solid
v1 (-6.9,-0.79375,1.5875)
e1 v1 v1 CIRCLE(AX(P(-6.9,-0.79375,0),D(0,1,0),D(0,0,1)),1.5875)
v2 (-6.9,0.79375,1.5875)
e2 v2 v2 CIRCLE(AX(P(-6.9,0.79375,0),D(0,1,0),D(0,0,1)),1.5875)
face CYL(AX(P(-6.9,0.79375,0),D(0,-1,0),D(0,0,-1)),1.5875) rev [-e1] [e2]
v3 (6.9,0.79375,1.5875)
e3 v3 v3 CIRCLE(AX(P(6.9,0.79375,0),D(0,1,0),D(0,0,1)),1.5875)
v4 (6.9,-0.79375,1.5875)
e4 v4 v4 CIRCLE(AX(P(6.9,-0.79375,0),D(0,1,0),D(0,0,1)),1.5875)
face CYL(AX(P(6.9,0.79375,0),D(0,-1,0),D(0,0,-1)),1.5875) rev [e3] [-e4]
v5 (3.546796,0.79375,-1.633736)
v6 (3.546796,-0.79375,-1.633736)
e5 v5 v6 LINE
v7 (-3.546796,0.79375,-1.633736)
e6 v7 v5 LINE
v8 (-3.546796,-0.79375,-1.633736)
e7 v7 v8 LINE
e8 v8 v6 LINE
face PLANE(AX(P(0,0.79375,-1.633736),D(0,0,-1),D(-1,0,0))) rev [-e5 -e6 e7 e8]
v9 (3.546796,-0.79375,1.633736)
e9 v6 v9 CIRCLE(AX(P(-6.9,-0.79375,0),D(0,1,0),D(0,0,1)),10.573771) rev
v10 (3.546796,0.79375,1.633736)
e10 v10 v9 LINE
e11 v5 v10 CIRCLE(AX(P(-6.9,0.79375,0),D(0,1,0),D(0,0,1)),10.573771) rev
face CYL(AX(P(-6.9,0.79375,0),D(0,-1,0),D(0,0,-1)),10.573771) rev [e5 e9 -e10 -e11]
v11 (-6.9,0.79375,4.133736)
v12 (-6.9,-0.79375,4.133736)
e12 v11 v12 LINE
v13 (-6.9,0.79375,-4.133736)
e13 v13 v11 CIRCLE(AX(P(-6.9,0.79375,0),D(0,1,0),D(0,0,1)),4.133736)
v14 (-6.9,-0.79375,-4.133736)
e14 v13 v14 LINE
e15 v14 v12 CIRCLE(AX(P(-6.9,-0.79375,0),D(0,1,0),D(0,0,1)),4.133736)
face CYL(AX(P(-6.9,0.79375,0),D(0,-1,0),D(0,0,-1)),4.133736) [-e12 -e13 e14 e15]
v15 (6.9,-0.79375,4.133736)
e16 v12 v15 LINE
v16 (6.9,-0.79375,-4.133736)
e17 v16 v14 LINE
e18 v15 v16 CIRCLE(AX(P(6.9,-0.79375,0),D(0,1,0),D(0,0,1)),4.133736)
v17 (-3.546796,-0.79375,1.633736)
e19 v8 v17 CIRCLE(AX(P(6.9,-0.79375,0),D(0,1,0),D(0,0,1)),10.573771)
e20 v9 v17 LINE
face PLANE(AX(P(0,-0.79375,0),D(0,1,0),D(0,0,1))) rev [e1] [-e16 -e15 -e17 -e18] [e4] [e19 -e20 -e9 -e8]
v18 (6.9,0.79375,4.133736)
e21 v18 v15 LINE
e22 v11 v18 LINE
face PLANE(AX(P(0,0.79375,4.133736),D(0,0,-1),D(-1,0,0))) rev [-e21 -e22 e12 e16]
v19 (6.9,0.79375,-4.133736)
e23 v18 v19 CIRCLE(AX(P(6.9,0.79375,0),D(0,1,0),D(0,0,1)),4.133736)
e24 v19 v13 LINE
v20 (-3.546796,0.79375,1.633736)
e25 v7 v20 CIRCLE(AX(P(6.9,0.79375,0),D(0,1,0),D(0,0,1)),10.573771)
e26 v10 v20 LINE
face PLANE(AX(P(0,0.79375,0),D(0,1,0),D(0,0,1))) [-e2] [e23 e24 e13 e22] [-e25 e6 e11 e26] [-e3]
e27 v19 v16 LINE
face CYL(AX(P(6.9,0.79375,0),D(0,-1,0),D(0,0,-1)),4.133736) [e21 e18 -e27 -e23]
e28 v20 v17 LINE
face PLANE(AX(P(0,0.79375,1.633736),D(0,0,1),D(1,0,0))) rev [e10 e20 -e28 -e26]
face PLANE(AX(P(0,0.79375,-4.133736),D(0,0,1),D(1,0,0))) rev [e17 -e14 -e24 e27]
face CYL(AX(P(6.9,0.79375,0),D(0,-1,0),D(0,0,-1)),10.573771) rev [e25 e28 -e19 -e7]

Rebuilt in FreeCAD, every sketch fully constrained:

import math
import FreeCAD as App
import Part
import Sketcher
from FreeCAD import Vector
Q = App.Units.Quantity

doc = App.newDocument("Part")
body = doc.addObject("PartDesign::Body", "Body")

# Sketch on XZ plane
sketch1 = body.newObject("Sketcher::SketchObject", "Sketch")
sketch1.AttachmentSupport = (doc.getObject("XZ_Plane"), [""])
sketch1.MapMode = "FlatFace"
sketch1.addGeometry([
    Part.LineSegment(Vector(6.9, -4.1, 0), Vector(-6.9, -4.1, 0)),  # 0
    Part.ArcOfCircle(Part.Circle(Vector(-6.9, 0, 0), Vector(0, 0, 1), 4.1), math.radians(90), math.radians(270)),  # 1
    Part.LineSegment(Vector(-6.9, 4.1, 0), Vector(6.9, 4.1, 0)),  # 2
    Part.ArcOfCircle(Part.Circle(Vector(6.9, 0, 0), Vector(0, 0, 1), 4.1), math.radians(-90), math.radians(90)),  # 3
    Part.Circle(Vector(-6.9, 0, 0), Vector(0, 0, 1), 1.6),  # 4
    Part.ArcOfCircle(Part.Circle(Vector(-6.9, 0, 0), Vector(0, 0, 1), 10.6), math.radians(-8.89), math.radians(8.89)),  # 5
    Part.LineSegment(Vector(3.5, 1.6, 0), Vector(-3.5, 1.6, 0)),  # 6
    Part.ArcOfCircle(Part.Circle(Vector(6.9, 0, 0), Vector(0, 0, 1), 10.6), math.radians(171.11), math.radians(188.89)),  # 7
    Part.LineSegment(Vector(-3.5, -1.6, 0), Vector(3.5, -1.6, 0)),  # 8
    Part.Circle(Vector(6.9, 0, 0), Vector(0, 0, 1), 1.6),  # 9
], False)
sketch1.addConstraint([
    Sketcher.Constraint("Tangent", 0, 2, 1, 2),
    Sketcher.Constraint("Tangent", 1, 1, 2, 1),
    Sketcher.Constraint("Tangent", 2, 2, 3, 2),
    Sketcher.Constraint("Tangent", 3, 1, 0, 1),
    Sketcher.Constraint("Coincident", 5, 2, 6, 1),
    Sketcher.Constraint("Coincident", 6, 2, 7, 1),
    Sketcher.Constraint("Coincident", 7, 2, 8, 1),
    Sketcher.Constraint("Coincident", 8, 2, 5, 1),
    Sketcher.Constraint("Horizontal", 0),
    Sketcher.Constraint("Horizontal", 2),
    Sketcher.Constraint("Horizontal", 6),
    Sketcher.Constraint("Horizontal", 8),
    Sketcher.Constraint("Coincident", 4, 3, 1, 3),
    Sketcher.Constraint("Coincident", 5, 3, 1, 3),
    Sketcher.Constraint("Coincident", 7, 3, 3, 3),
    Sketcher.Constraint("Coincident", 9, 3, 3, 3),
    Sketcher.Constraint("Equal", 5, 7),
    Sketcher.Constraint("Equal", 4, 9),
    Sketcher.Constraint("Symmetric", 1, 3, 3, 3, -1, 1),
    Sketcher.Constraint("Vertical", 6, 2, 7, 2),
    Sketcher.Constraint("Diameter", 4, Q("0.125 in")),
    Sketcher.Constraint("Radius", 5, Q("10.573771 mm")),
    Sketcher.Constraint("DistanceX", 0, 2, 0, 1, Q("13.8 mm")),
    Sketcher.Constraint("Radius", 1, Q("4.133736 mm")),
    Sketcher.Constraint("DistanceX", 6, 2, 6, 1, Q("7.093592 mm")),
])
pad1 = body.newObject("PartDesign::Pad", "Pad")
pad1.Profile = sketch1
pad1.Length = Q("0.0625 in")
pad1.Midplane = True

doc.recompute()
